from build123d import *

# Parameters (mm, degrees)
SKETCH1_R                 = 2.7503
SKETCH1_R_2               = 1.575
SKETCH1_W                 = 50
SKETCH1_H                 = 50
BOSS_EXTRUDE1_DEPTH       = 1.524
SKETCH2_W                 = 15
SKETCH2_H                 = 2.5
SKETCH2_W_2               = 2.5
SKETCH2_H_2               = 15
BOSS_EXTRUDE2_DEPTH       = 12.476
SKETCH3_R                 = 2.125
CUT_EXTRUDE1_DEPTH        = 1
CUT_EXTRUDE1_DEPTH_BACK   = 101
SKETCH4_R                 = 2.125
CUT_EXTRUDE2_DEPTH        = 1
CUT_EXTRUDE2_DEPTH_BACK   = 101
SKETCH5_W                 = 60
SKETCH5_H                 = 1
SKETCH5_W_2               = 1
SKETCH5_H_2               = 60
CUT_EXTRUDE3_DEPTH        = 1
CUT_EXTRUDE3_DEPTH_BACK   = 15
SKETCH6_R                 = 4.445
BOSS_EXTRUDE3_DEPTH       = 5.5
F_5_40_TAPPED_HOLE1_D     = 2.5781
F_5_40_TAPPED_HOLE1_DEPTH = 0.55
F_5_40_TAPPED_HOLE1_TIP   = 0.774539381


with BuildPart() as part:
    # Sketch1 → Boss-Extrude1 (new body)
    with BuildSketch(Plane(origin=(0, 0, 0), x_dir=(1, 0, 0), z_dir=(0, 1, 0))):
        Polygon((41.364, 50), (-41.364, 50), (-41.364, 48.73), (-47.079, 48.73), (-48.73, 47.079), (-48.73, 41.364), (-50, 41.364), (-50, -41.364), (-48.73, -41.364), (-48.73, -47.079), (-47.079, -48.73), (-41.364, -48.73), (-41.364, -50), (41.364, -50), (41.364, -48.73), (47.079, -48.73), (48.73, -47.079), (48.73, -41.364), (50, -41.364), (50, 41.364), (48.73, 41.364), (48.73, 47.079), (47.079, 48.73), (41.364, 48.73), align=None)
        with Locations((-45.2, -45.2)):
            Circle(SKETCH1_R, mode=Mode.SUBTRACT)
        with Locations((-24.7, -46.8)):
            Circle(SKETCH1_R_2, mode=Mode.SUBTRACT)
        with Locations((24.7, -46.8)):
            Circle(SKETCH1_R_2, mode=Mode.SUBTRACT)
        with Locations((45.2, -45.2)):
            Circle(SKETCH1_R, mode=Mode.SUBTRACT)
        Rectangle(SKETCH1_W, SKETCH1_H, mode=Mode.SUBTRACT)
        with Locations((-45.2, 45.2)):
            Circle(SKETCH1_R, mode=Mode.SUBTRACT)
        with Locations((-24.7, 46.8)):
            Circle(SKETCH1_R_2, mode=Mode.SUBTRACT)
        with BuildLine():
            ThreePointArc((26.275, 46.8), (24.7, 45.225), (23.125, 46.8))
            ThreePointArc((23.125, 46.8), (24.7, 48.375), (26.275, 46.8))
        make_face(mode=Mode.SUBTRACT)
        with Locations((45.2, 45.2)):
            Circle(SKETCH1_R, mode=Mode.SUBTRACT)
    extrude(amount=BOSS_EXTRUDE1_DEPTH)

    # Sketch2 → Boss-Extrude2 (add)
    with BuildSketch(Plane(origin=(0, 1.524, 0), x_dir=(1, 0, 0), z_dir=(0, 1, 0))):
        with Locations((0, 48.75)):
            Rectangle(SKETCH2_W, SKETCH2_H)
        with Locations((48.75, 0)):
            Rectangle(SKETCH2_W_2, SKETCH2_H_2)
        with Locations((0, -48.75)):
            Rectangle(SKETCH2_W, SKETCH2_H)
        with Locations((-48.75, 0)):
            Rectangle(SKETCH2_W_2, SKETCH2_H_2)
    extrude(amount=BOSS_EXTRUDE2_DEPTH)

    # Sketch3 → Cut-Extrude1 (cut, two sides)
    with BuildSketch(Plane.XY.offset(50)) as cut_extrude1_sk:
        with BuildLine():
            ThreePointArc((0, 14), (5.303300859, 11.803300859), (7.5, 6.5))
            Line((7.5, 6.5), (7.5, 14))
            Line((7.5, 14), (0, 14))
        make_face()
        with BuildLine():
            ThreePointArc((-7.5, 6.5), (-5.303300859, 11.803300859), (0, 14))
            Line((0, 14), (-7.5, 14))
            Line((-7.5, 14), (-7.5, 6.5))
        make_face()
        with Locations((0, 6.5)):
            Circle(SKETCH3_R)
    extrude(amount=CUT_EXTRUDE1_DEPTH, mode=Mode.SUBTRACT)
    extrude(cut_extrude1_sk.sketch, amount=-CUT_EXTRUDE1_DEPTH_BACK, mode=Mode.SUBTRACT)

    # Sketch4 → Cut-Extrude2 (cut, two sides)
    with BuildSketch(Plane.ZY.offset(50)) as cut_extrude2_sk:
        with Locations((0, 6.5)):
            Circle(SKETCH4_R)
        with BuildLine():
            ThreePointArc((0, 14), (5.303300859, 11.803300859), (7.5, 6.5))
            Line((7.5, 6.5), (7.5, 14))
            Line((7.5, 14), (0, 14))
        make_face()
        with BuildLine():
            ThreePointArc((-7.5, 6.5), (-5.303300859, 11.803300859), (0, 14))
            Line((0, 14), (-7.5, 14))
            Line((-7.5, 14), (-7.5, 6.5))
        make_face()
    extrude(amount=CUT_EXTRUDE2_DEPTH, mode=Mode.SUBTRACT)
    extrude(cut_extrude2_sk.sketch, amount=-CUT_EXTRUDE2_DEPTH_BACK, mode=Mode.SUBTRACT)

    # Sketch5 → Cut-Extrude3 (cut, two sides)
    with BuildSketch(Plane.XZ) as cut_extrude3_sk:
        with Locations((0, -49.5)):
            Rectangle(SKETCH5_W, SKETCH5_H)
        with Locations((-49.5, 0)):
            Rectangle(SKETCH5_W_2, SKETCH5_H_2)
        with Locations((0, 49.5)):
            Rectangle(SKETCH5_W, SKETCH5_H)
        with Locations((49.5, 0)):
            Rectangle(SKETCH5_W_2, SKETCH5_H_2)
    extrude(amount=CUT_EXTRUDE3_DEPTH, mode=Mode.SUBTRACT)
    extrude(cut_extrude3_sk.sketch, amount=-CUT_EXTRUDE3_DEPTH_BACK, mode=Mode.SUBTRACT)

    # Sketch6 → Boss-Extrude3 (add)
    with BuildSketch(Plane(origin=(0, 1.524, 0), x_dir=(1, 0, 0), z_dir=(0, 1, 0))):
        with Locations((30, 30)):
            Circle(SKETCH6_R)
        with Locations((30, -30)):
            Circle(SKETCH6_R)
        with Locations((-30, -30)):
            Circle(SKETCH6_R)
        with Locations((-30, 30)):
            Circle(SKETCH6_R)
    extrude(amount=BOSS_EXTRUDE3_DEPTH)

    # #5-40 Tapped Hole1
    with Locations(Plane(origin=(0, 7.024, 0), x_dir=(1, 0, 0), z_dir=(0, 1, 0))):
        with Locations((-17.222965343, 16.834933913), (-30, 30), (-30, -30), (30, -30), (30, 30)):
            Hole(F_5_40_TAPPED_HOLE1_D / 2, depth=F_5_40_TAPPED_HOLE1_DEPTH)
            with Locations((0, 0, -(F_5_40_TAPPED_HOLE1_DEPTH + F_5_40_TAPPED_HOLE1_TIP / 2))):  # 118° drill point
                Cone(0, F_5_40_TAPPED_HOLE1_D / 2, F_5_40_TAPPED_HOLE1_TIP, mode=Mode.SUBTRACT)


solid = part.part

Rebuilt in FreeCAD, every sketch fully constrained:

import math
import FreeCAD as App
import Part
import Sketcher

V = App.Vector
Q = App.Units.Quantity


def add_polygon(sketch, points):
    """Adds a closed chain of lines whose ends are joined by coincident constraints."""
    first, n = sketch.GeometryCount, len(points)
    for a, b in zip(points, points[1:] + points[:1]):
        sketch.addGeometry(Part.LineSegment(App.Vector(*a, 0), App.Vector(*b, 0)), False)
    for i in range(n):
        sketch.addConstraint(Sketcher.Constraint("Coincident", first + i, 2, first + (i + 1) % n, 1))

doc = App.newDocument("Part")
body = doc.addObject("PartDesign::Body", "Body")

sketch1 = doc.addObject("Sketcher::SketchObject", "Sketch")
body.addObject(sketch1)
sketch1.AttachmentSupport = (doc.XZ_Plane, [""])
sketch1.MapMode = "FlatFace"
add_polygon(sketch1, [(41.364, -50), (-41.364, -50), (-41.364, -48.73), (-47.079, -48.73), (-48.73, -47.079), (-48.73, -41.364), (-50, -41.364), (-50, 41.364), (-48.73, 41.364), (-48.73, 47.079), (-47.079, 48.73), (-41.364, 48.73), (-41.364, 50), (41.364, 50), (41.364, 48.73), (47.079, 48.73), (48.73, 47.079), (48.73, 41.364), (50, 41.364), (50, -41.364), (48.73, -41.364), (48.73, -47.079), (47.079, -48.73), (41.364, -48.73)])
sketch1.addGeometry(Part.Circle(V(-45.2, 45.2, 0), V(0, 0, 1), 2.7503), False)
sketch1.addGeometry(Part.Circle(V(-24.7, 46.8, 0), V(0, 0, 1), 1.575), False)
sketch1.addGeometry(Part.Circle(V(24.7, 46.8, 0), V(0, 0, 1), 1.575), False)
sketch1.addGeometry(Part.Circle(V(45.2, 45.2, 0), V(0, 0, 1), 2.7503), False)
sketch1.addGeometry(Part.Circle(V(-45.2, -45.2, 0), V(0, 0, 1), 2.7503), False)
sketch1.addGeometry(Part.Circle(V(-24.7, -46.8, 0), V(0, 0, 1), 1.575), False)
add_polygon(sketch1, [(25, 25), (-25, 25), (-25, -25), (25, -25)])
sketch1.addGeometry(Part.Circle(V(24.7, -46.8, 0), V(0, 0, 1), 1.575), False)
sketch1.addGeometry(Part.Circle(V(45.2, -45.2, 0), V(0, 0, 1), 2.7503), False)
sketch1.addConstraint([
    Sketcher.Constraint("Horizontal", 0),
    Sketcher.Constraint("Vertical", 1),
    Sketcher.Constraint("Horizontal", 2),
    Sketcher.Constraint("Vertical", 4),
    Sketcher.Constraint("Horizontal", 5),
    Sketcher.Constraint("Vertical", 6),
    Sketcher.Constraint("Horizontal", 7),
    Sketcher.Constraint("Vertical", 8),
    Sketcher.Constraint("Horizontal", 10),
    Sketcher.Constraint("Vertical", 11),
    Sketcher.Constraint("Horizontal", 12),
    Sketcher.Constraint("Vertical", 13),
    Sketcher.Constraint("Horizontal", 14),
    Sketcher.Constraint("Vertical", 16),
    Sketcher.Constraint("Horizontal", 17),
    Sketcher.Constraint("Vertical", 18),
    Sketcher.Constraint("Horizontal", 19),
    Sketcher.Constraint("Vertical", 20),
    Sketcher.Constraint("Horizontal", 22),
    Sketcher.Constraint("Vertical", 23),
    Sketcher.Constraint("Horizontal", 30),
    Sketcher.Constraint("Vertical", 31),
    Sketcher.Constraint("Horizontal", 32),
    Sketcher.Constraint("Vertical", 33),
    Sketcher.Constraint("Equal", 25, 26),
    Sketcher.Constraint("Equal", 24, 27),
    Sketcher.Constraint("Equal", 27, 28),
    Sketcher.Constraint("Equal", 26, 29),
    Sketcher.Constraint("Equal", 29, 34),
    Sketcher.Constraint("Equal", 28, 35),
    Sketcher.Constraint("Symmetric", 27, 3, 28, 3, -1, 1),
    Sketcher.Constraint("Symmetric", 26, 3, 29, 3, -1, 1),
    Sketcher.Constraint("Symmetric", 25, 3, 34, 3, -1, 1),
    Sketcher.Constraint("Symmetric", 24, 3, 35, 3, -1, 1),
    Sketcher.Constraint("Symmetric", 0, 2, 12, 2, -1, 1),
    Sketcher.Constraint("Symmetric", 2, 2, 14, 2, -1, 1),
    Sketcher.Constraint("Symmetric", 3, 2, 15, 2, -1, 1),
    Sketcher.Constraint("Symmetric", 5, 2, 17, 2, -1, 1),
    Sketcher.Constraint("Symmetric", 7, 2, 19, 2, -1, 1),
    Sketcher.Constraint("Symmetric", 9, 2, 21, 2, -1, 1),
    Sketcher.Constraint("Symmetric", 30, 2, 32, 2, -1, 1),
    Sketcher.Constraint("Symmetric", 25, 3, 26, 3, -2),
    Sketcher.Constraint("Symmetric", 24, 3, 27, 3, -2),
    Sketcher.Constraint("Symmetric", 10, 2, 13, 2, -2),
    Sketcher.Constraint("Symmetric", 8, 2, 15, 2, -2),
    Sketcher.Constraint("Perpendicular", 3, 9),
    Sketcher.Constraint("Perpendicular", 15, 21),
    Sketcher.Constraint("Horizontal", 7, 2, 16, 2),
    Sketcher.Constraint("Vertical", 2, 2, 9, 2),
    Sketcher.Constraint("Vertical", 13, 2, 22, 2),
    Sketcher.Constraint("Equal", 19, 1),
    Sketcher.Constraint("Equal", 22, 4),
    Sketcher.Constraint("Equal", 12, 6),
    Sketcher.Constraint("Equal", 32, 31),
    Sketcher.Constraint("Diameter", 25, Q("3.15 mm")),
    Sketcher.Constraint("DistanceX", 30, 2, 30, 1, Q("50 mm")),
    Sketcher.Constraint("DistanceY", 0, 2, -1, 1, Q("50 mm")),
    Sketcher.Constraint("DistanceY", 28, 3, 25, 3, Q("92 mm")),
    Sketcher.Constraint("Diameter", 24, Q("5.5006 mm")),
    Sketcher.Constraint("DistanceX", 5, 2, 5, 1, Q("1.27 mm")),
    Sketcher.Constraint("DistanceX", 24, 3, -1, 1, Q("45.2 mm")),
    Sketcher.Constraint("DistanceY", -1, 1, 24, 3, Q("45.2 mm")),
    Sketcher.Constraint("DistanceX", 25, 3, -1, 1, Q("24.7 mm")),
    Sketcher.Constraint("DistanceX", 0, 2, 0, 1, Q("82.728 mm")),
    Sketcher.Constraint("DistanceX", 2, 2, 2, 1, Q("5.715 mm")),
])
pad1 = doc.addObject("PartDesign::Pad", "Pad")
body.addObject(pad1)
pad1.Profile = sketch1
pad1.Length = 1.524
pad1.Reversed = True

sketch2 = doc.addObject("Sketcher::SketchObject", "Sketch001")
body.addObject(sketch2)
sketch2.AttachmentSupport = (doc.XZ_Plane, [""])
sketch2.MapMode = "FlatFace"
sketch2.AttachmentOffset = App.Placement(V(0, 0, -1.524), App.Rotation())
add_polygon(sketch2, [(-7.5, -50), (-7.5, -47.5), (7.5, -47.5), (7.5, -50)])
add_polygon(sketch2, [(47.5, -7.5), (47.5, 7.5), (50, 7.5), (50, -7.5)])
add_polygon(sketch2, [(-7.5, 47.5), (-7.5, 50), (7.5, 50), (7.5, 47.5)])
add_polygon(sketch2, [(-50, -7.5), (-50, 7.5), (-47.5, 7.5), (-47.5, -7.5)])
sketch2.addConstraint([
    Sketcher.Constraint("Vertical", 0),
    Sketcher.Constraint("Horizontal", 1),
    Sketcher.Constraint("Vertical", 2),
    Sketcher.Constraint("Horizontal", 3),
    Sketcher.Constraint("Vertical", 4),
    Sketcher.Constraint("Horizontal", 5),
    Sketcher.Constraint("Vertical", 6),
    Sketcher.Constraint("Horizontal", 7),
    Sketcher.Constraint("Vertical", 8),
    Sketcher.Constraint("Horizontal", 9),
    Sketcher.Constraint("Vertical", 10),
    Sketcher.Constraint("Horizontal", 11),
    Sketcher.Constraint("Vertical", 12),
    Sketcher.Constraint("Horizontal", 13),
    Sketcher.Constraint("Vertical", 14),
    Sketcher.Constraint("Horizontal", 15),
    Sketcher.Constraint("Symmetric", 2, 2, 8, 2, -1, 1),
    Sketcher.Constraint("Symmetric", 0, 2, 10, 2, -1, 1),
    Sketcher.Constraint("Symmetric", 6, 2, 12, 2, -1, 1),
    Sketcher.Constraint("Symmetric", 4, 2, 14, 2, -1, 1),
    Sketcher.Constraint("Horizontal", 5, 2, 12, 2),
    Sketcher.Constraint("Vertical", 3, 2, 8, 2),
    Sketcher.Constraint("Equal", 15, 0),
    Sketcher.Constraint("Equal", 11, 4),
    Sketcher.Constraint("DistanceX", 1, 1, 1, 2, Q("15 mm")),
    Sketcher.Constraint("DistanceX", 5, 1, 5, 2, Q("2.5 mm")),
    Sketcher.Constraint("DistanceY", 2, 2, -1, 1, Q("50 mm")),
    Sketcher.Constraint("DistanceX", -1, 1, 5, 2, Q("50 mm")),
])
pad2 = doc.addObject("PartDesign::Pad", "Pad001")
body.addObject(pad2)
pad2.Profile = sketch2
pad2.Length = 12.476
pad2.Reversed = True

sketch3 = doc.addObject("Sketcher::SketchObject", "Sketch002")
body.addObject(sketch3)
sketch3.AttachmentSupport = (doc.XY_Plane, [""])
sketch3.MapMode = "FlatFace"
sketch3.AttachmentOffset = App.Placement(V(0, 0, 50), App.Rotation())
sketch3.addGeometry([
    Part.ArcOfCircle(Part.Circle(V(0, 6.5, 0), V(0, 0, 1), 7.5), math.radians(0), math.radians(90)),
    Part.LineSegment(V(7.5, 6.5, 0), V(7.5, 14, 0)),
    Part.LineSegment(V(7.5, 14, 0), V(0, 14, 0)),
    Part.ArcOfCircle(Part.Circle(V(0, 6.5, 0), V(0, 0, 1), 7.5), math.radians(90), math.radians(180)),
    Part.LineSegment(V(0, 14, 0), V(-7.5, 14, 0)),
    Part.LineSegment(V(-7.5, 14, 0), V(-7.5, 6.5, 0)),
    Part.Circle(V(0, 6.5, 0), V(0, 0, 1), 2.125),
], False)
sketch3.addConstraint([
    Sketcher.Constraint("Tangent", 0, 1, 1, 1),
    Sketcher.Constraint("Coincident", 1, 2, 2, 1),
    Sketcher.Constraint("Tangent", 2, 2, 0, 2),
    Sketcher.Constraint("Tangent", 3, 1, 4, 1),
    Sketcher.Constraint("Coincident", 4, 2, 5, 1),
    Sketcher.Constraint("Tangent", 5, 2, 3, 2),
    Sketcher.Constraint("Vertical", 1),
    Sketcher.Constraint("Horizontal", 2),
    Sketcher.Constraint("Horizontal", 4),
    Sketcher.Constraint("Vertical", 5),
    Sketcher.Constraint("Coincident", 3, 3, 0, 3),
    Sketcher.Constraint("Coincident", 6, 3, 0, 3),
    Sketcher.Constraint("Equal", 0, 3),
    Sketcher.Constraint("PointOnObject", 0, 3, -2),
    Sketcher.Constraint("Radius", 0, Q("7.5 mm")),
    Sketcher.Constraint("Diameter", 6, Q("4.25 mm")),
    Sketcher.Constraint("DistanceY", -1, 1, 1, 2, Q("14 mm")),
])
pocket1 = doc.addObject("PartDesign::Pocket", "Pocket")
body.addObject(pocket1)
pocket1.Profile = sketch3
pocket1.Type = "ThroughAll"
pocket1.Midplane = True

sketch4 = doc.addObject("Sketcher::SketchObject", "Sketch003")
body.addObject(sketch4)
sketch4.AttachmentSupport = (doc.YZ_Plane, [""])
sketch4.MapMode = "FlatFace"
sketch4.AttachmentOffset = App.Placement(V(0, 0, -50), App.Rotation())
sketch4.addGeometry([
    Part.Circle(V(6.5, 0, 0), V(0, 0, 1), 2.125),
    Part.ArcOfCircle(Part.Circle(V(6.5, 0, 0), V(0, 0, 1), 7.5), math.radians(0), math.radians(90)),
    Part.LineSegment(V(6.5, 7.5, 0), V(14, 7.5, 0)),
    Part.LineSegment(V(14, 7.5, 0), V(14, 0, 0)),
    Part.ArcOfCircle(Part.Circle(V(6.5, 0, 0), V(0, 0, 1), 7.5), math.radians(-90), math.radians(0)),
    Part.LineSegment(V(14, 0, 0), V(14, -7.5, 0)),
    Part.LineSegment(V(14, -7.5, 0), V(6.5, -7.5, 0)),
], False)
sketch4.addConstraint([
    Sketcher.Constraint("Tangent", 1, 2, 2, 1),
    Sketcher.Constraint("Coincident", 2, 2, 3, 1),
    Sketcher.Constraint("Tangent", 3, 2, 1, 1),
    Sketcher.Constraint("Tangent", 4, 2, 5, 1),
    Sketcher.Constraint("Coincident", 5, 2, 6, 1),
    Sketcher.Constraint("Tangent", 6, 2, 4, 1),
    Sketcher.Constraint("Horizontal", 2),
    Sketcher.Constraint("Vertical", 3),
    Sketcher.Constraint("Vertical", 5),
    Sketcher.Constraint("Horizontal", 6),
    Sketcher.Constraint("Coincident", 1, 3, 0, 3),
    Sketcher.Constraint("Coincident", 4, 3, 0, 3),
    Sketcher.Constraint("Equal", 1, 4),
    Sketcher.Constraint("PointOnObject", 0, 3, -1),
    Sketcher.Constraint("Radius", 1, Q("7.5 mm")),
    Sketcher.Constraint("Diameter", 0, Q("4.25 mm")),
    Sketcher.Constraint("DistanceX", -1, 1, 2, 2, Q("14 mm")),
])
pocket2 = doc.addObject("PartDesign::Pocket", "Pocket001")
body.addObject(pocket2)
pocket2.Profile = sketch4
pocket2.Type = "ThroughAll"
pocket2.Midplane = True

sketch5 = doc.addObject("Sketcher::SketchObject", "Sketch004")
body.addObject(sketch5)
sketch5.AttachmentSupport = (doc.XZ_Plane, [""])
sketch5.MapMode = "FlatFace"
add_polygon(sketch5, [(-30, -49), (-30, -50), (30, -50), (30, -49)])
add_polygon(sketch5, [(-50, 30), (-50, -30), (-49, -30), (-49, 30)])
add_polygon(sketch5, [(-30, 50), (-30, 49), (30, 49), (30, 50)])
add_polygon(sketch5, [(49, 30), (49, -30), (50, -30), (50, 30)])
sketch5.addConstraint([
    Sketcher.Constraint("Vertical", 0),
    Sketcher.Constraint("Horizontal", 1),
    Sketcher.Constraint("Vertical", 2),
    Sketcher.Constraint("Horizontal", 3),
    Sketcher.Constraint("Vertical", 4),
    Sketcher.Constraint("Horizontal", 5),
    Sketcher.Constraint("Vertical", 6),
    Sketcher.Constraint("Horizontal", 7),
    Sketcher.Constraint("Vertical", 8),
    Sketcher.Constraint("Horizontal", 9),
    Sketcher.Constraint("Vertical", 10),
    Sketcher.Constraint("Horizontal", 11),
    Sketcher.Constraint("Vertical", 12),
    Sketcher.Constraint("Horizontal", 13),
    Sketcher.Constraint("Vertical", 14),
    Sketcher.Constraint("Horizontal", 15),
    Sketcher.Constraint("Symmetric", 2, 2, 8, 2, -1, 1),
    Sketcher.Constraint("Symmetric", 0, 2, 10, 2, -1, 1),
    Sketcher.Constraint("Symmetric", 6, 2, 12, 2, -1, 1),
    Sketcher.Constraint("Symmetric", 4, 2, 14, 2, -1, 1),
    Sketcher.Constraint("Horizontal", 5, 2, 12, 2),
    Sketcher.Constraint("Vertical", 3, 2, 8, 2),
    Sketcher.Constraint("Equal", 15, 0),
    Sketcher.Constraint("Equal", 11, 4),
    Sketcher.Constraint("DistanceX", 1, 1, 1, 2, Q("60 mm")),
    Sketcher.Constraint("DistanceX", 5, 1, 5, 2, Q("1 mm")),
    Sketcher.Constraint("DistanceY", 0, 2, -1, 1, Q("50 mm")),
    Sketcher.Constraint("DistanceX", 4, 2, -1, 1, Q("50 mm")),
])
pocket3 = doc.addObject("PartDesign::Pocket", "Pocket002")
body.addObject(pocket3)
pocket3.Profile = sketch5
pocket3.Type = "ThroughAll"
pocket3.Midplane = True

sketch6 = doc.addObject("Sketcher::SketchObject", "Sketch005")
body.addObject(sketch6)
sketch6.AttachmentSupport = (doc.XZ_Plane, [""])
sketch6.MapMode = "FlatFace"
sketch6.AttachmentOffset = App.Placement(V(0, 0, -1.524), App.Rotation())
sketch6.addGeometry([
    Part.Circle(V(30, -30, 0), V(0, 0, 1), 4.445),
    Part.Circle(V(30, 30, 0), V(0, 0, 1), 4.445),
    Part.Circle(V(-30, 30, 0), V(0, 0, 1), 4.445),
    Part.Circle(V(-30, -30, 0), V(0, 0, 1), 4.445),
], False)
sketch6.addConstraint([
    Sketcher.Constraint("Equal", 0, 1),
    Sketcher.Constraint("Equal", 1, 2),
    Sketcher.Constraint("Equal", 2, 3),
    Sketcher.Constraint("Symmetric", 0, 3, 2, 3, -1, 1),
    Sketcher.Constraint("Symmetric", 1, 3, 3, 3, -1, 1),
    Sketcher.Constraint("Symmetric", 1, 3, 2, 3, -2),
    Sketcher.Constraint("Diameter", 0, Q("8.89 mm")),
    Sketcher.Constraint("DistanceX", -1, 1, 0, 3, Q("30 mm")),
    Sketcher.Constraint("DistanceY", 0, 3, -1, 1, Q("30 mm")),
])
pad3 = doc.addObject("PartDesign::Pad", "Pad002")
body.addObject(pad3)
pad3.Profile = sketch6
pad3.Length = 5.5
pad3.Reversed = True

sketch7 = doc.addObject("Sketcher::SketchObject", "Sketch006")
body.addObject(sketch7)
sketch7.AttachmentSupport = (doc.XZ_Plane, [""])
sketch7.MapMode = "FlatFace"
sketch7.AttachmentOffset = App.Placement(V(0, 0, -7.024), App.Rotation())
sketch7.addGeometry([
    Part.Circle(V(-17.222965, -16.834934, 0), V(0, 0, 1), 1.28905),
    Part.Circle(V(-30, -30, 0), V(0, 0, 1), 1.28905),
    Part.Circle(V(-30, 30, 0), V(0, 0, 1), 1.28905),
    Part.Circle(V(30, 30, 0), V(0, 0, 1), 1.28905),
    Part.Circle(V(30, -30, 0), V(0, 0, 1), 1.28905),
], False)
sketch7.addConstraint([
    Sketcher.Constraint("Equal", 0, 1),
    Sketcher.Constraint("Equal", 1, 2),
    Sketcher.Constraint("Equal", 2, 3),
    Sketcher.Constraint("Equal", 3, 4),
    Sketcher.Constraint("Symmetric", 1, 3, 3, 3, -1, 1),
    Sketcher.Constraint("Symmetric", 2, 3, 4, 3, -1, 1),
    Sketcher.Constraint("Symmetric", 2, 3, 3, 3, -2),
    Sketcher.Constraint("DistanceX", 1, 3, -1, 1, Q("30 mm")),
    Sketcher.Constraint("DistanceY", 1, 3, -1, 1, Q("30 mm")),
    Sketcher.Constraint("Diameter", 0, Q("2.5781 mm")),
    Sketcher.Constraint("DistanceX", 0, 3, -1, 1, Q("17.222965 mm")),
    Sketcher.Constraint("DistanceY", 0, 3, -1, 1, Q("16.834934 mm")),
])
doc.recompute()
hole = doc.addObject("PartDesign::Hole", "Hole")
body.addObject(hole)
hole.Profile = sketch7
hole.ThreadType = "None"
hole.Diameter = 2.5781
hole.DepthType = "Dimension"
hole.Depth = 0.55
hole.DrillPoint = "Angled"
hole.DrillPointAngle = 118
hole.Reversed = True

doc.recompute()
